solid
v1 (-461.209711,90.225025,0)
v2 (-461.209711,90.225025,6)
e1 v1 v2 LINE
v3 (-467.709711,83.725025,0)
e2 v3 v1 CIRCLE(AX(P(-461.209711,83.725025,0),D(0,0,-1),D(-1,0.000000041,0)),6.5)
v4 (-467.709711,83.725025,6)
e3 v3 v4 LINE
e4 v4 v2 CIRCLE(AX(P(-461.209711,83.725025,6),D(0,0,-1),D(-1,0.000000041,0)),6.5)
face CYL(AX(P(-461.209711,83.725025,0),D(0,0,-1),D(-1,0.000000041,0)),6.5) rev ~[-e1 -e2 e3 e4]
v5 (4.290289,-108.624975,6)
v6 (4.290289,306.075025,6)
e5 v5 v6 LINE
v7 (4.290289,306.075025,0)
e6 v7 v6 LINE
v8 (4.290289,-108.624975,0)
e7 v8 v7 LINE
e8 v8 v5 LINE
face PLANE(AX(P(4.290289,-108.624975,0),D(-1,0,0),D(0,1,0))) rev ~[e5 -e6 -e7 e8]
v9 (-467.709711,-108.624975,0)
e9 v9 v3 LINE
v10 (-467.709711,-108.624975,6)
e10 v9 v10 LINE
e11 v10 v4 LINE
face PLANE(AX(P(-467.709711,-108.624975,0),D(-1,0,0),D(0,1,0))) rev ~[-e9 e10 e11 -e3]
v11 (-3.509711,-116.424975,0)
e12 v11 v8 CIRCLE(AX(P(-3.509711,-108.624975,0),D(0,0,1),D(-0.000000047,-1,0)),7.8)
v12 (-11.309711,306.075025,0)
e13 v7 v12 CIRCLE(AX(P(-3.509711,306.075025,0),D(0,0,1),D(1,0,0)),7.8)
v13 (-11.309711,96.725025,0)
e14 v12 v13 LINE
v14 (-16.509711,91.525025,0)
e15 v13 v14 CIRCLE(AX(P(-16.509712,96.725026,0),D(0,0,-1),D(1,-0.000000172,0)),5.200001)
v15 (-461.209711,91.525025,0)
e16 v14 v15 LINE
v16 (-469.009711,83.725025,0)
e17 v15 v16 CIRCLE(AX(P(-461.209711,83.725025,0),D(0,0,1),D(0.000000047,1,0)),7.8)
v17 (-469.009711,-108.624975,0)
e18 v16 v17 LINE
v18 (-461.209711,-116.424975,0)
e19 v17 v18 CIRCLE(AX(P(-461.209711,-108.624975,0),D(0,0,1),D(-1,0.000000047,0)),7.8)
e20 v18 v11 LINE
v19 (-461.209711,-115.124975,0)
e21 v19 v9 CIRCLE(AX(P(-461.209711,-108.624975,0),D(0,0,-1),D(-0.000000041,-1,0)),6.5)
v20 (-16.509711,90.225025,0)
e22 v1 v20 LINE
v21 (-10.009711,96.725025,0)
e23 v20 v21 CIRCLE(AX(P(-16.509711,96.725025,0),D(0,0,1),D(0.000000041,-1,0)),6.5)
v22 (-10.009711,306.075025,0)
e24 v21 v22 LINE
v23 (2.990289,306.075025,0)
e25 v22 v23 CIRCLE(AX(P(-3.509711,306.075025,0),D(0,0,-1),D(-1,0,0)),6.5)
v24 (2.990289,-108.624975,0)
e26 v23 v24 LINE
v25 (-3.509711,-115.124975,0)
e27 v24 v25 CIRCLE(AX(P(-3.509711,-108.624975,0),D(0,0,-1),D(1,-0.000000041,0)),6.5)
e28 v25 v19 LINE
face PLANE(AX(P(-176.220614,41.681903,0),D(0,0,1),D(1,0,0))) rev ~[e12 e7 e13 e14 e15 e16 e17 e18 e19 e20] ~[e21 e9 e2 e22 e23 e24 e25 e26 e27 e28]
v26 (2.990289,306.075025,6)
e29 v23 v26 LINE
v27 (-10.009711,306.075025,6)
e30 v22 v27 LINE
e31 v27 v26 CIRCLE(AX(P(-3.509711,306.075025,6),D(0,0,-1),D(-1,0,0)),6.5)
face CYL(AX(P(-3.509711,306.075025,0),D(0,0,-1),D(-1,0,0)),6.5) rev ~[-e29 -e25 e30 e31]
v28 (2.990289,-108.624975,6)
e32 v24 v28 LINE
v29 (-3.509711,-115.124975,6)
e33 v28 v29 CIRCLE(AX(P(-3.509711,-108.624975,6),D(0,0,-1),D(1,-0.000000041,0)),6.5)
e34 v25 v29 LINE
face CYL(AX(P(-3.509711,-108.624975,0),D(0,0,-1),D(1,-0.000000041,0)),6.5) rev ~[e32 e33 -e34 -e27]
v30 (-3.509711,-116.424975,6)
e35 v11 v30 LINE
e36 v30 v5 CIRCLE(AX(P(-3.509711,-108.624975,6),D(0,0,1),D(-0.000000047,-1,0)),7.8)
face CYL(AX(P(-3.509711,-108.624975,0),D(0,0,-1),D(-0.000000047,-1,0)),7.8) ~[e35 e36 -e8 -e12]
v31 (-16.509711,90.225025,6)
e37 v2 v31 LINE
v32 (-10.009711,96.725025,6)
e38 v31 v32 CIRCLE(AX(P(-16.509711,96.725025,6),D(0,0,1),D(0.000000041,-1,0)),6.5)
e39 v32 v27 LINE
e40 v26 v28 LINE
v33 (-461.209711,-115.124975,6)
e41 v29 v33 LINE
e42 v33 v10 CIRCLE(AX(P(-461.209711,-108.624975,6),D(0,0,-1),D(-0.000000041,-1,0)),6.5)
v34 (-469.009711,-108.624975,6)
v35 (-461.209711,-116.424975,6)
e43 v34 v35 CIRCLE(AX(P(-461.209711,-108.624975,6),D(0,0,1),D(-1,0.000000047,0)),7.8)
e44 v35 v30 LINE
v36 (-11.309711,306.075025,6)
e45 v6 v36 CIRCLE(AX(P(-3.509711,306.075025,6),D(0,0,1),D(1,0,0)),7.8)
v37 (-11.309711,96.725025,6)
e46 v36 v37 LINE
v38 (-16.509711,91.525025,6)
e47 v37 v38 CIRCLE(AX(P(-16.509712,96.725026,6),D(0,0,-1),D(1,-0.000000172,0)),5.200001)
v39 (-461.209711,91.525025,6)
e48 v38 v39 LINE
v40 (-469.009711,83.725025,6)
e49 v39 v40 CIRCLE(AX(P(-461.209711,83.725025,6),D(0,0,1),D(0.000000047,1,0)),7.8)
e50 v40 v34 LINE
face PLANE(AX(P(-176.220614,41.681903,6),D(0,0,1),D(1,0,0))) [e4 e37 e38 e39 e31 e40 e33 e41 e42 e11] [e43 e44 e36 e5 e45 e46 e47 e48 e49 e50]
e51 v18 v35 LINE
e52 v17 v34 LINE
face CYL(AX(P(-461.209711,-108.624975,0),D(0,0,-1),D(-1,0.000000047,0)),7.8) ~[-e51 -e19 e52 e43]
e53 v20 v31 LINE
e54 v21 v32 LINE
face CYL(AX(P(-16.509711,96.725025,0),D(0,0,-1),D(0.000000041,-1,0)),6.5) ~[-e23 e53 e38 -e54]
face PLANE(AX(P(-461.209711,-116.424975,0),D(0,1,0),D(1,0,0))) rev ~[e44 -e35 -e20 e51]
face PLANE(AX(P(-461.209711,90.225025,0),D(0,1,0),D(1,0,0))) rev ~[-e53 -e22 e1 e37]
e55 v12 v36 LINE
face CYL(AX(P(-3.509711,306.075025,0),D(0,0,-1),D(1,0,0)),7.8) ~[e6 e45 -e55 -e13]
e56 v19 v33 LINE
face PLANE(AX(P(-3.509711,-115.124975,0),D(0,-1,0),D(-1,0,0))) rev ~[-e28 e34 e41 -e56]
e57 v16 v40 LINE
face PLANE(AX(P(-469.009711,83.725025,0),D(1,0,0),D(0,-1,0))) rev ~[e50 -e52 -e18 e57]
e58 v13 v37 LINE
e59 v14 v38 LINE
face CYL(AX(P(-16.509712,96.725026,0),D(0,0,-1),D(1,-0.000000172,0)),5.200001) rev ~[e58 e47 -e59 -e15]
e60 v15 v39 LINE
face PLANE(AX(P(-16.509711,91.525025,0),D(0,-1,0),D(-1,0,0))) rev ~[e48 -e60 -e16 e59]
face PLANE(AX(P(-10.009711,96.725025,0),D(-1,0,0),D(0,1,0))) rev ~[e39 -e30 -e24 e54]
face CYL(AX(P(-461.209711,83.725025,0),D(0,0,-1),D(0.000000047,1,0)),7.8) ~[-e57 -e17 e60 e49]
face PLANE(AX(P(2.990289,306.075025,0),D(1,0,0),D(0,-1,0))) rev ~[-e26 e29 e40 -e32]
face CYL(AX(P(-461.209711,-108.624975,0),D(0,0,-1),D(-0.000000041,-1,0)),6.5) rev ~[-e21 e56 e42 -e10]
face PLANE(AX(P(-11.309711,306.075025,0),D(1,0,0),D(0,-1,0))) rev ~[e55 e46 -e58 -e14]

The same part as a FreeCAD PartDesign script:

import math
import FreeCAD as App
import Part
import Sketcher
Q = App.Units.Quantity

doc = App.newDocument("Part")
body = doc.addObject("PartDesign::Body", "Body")

# Sketch on XY plane
sketch1 = body.newObject("Sketcher::SketchObject", "Sketch")
sketch1.AttachmentSupport = (doc.getObject("XY_Plane"), [""])
sketch1.MapMode = "FlatFace"
sketch1.addGeometry([
    Part.LineSegment(App.Vector(4, -109, 0), App.Vector(4, 306, 0)),  # 0
    Part.ArcOfCircle(Part.Circle(App.Vector(-4, 306, 0), App.Vector(0, 0, 1), 8), math.radians(0), math.radians(180)),  # 1
    Part.LineSegment(App.Vector(-11, 306, 0), App.Vector(-11, 97, 0)),  # 2
    Part.ArcOfCircle(Part.Circle(App.Vector(-17, 97, 0), App.Vector(0, 0, 1), 5), math.radians(-90), math.radians(0)),  # 3
    Part.LineSegment(App.Vector(-17, 92, 0), App.Vector(-461, 92, 0)),  # 4
    Part.ArcOfCircle(Part.Circle(App.Vector(-461, 84, 0), App.Vector(0, 0, 1), 8), math.radians(90), math.radians(180)),  # 5
    Part.LineSegment(App.Vector(-469, 84, 0), App.Vector(-469, -109, 0)),  # 6
    Part.ArcOfCircle(Part.Circle(App.Vector(-461, -109, 0), App.Vector(0, 0, 1), 8), math.radians(180), math.radians(270)),  # 7
    Part.LineSegment(App.Vector(-461, -116, 0), App.Vector(-4, -116, 0)),  # 8
    Part.ArcOfCircle(Part.Circle(App.Vector(-4, -109, 0), App.Vector(0, 0, 1), 8), math.radians(-90), math.radians(0)),  # 9
    Part.LineSegment(App.Vector(-10, 97, 0), App.Vector(-10, 306, 0)),  # 10
    Part.ArcOfCircle(Part.Circle(App.Vector(-4, 306, 0), App.Vector(0, 0, 1), 6), math.radians(0), math.radians(180)),  # 11
    Part.LineSegment(App.Vector(3, 306, 0), App.Vector(3, -109, 0)),  # 12
    Part.ArcOfCircle(Part.Circle(App.Vector(-4, -109, 0), App.Vector(0, 0, 1), 7), math.radians(-90), math.radians(0)),  # 13
    Part.LineSegment(App.Vector(-4, -115, 0), App.Vector(-461, -115, 0)),  # 14
    Part.ArcOfCircle(Part.Circle(App.Vector(-461, -109, 0), App.Vector(0, 0, 1), 7), math.radians(-180), math.radians(-90)),  # 15
    Part.LineSegment(App.Vector(-468, -109, 0), App.Vector(-468, 84, 0)),  # 16
    Part.ArcOfCircle(Part.Circle(App.Vector(-461, 84, 0), App.Vector(0, 0, 1), 7), math.radians(90), math.radians(180)),  # 17
    Part.LineSegment(App.Vector(-461, 90, 0), App.Vector(-17, 90, 0)),  # 18
    Part.ArcOfCircle(Part.Circle(App.Vector(-17, 97, 0), App.Vector(0, 0, 1), 7), math.radians(-90), math.radians(0)),  # 19
], False)
sketch1.addConstraint([
    Sketcher.Constraint("Tangent", 0, 2, 1, 1),
    Sketcher.Constraint("Tangent", 1, 2, 2, 1),
    Sketcher.Constraint("Tangent", 2, 2, 3, 2),
    Sketcher.Constraint("Tangent", 3, 1, 4, 1),
    Sketcher.Constraint("Tangent", 4, 2, 5, 1),
    Sketcher.Constraint("Tangent", 5, 2, 6, 1),
    Sketcher.Constraint("Tangent", 6, 2, 7, 1),
    Sketcher.Constraint("Tangent", 7, 2, 8, 1),
    Sketcher.Constraint("Tangent", 8, 2, 9, 1),
    Sketcher.Constraint("Tangent", 9, 2, 0, 1),
    Sketcher.Constraint("Tangent", 10, 2, 11, 2),
    Sketcher.Constraint("Tangent", 11, 1, 12, 1),
    Sketcher.Constraint("Tangent", 12, 2, 13, 2),
    Sketcher.Constraint("Tangent", 13, 1, 14, 1),
    Sketcher.Constraint("Tangent", 14, 2, 15, 2),
    Sketcher.Constraint("Tangent", 15, 1, 16, 1),
    Sketcher.Constraint("Tangent", 16, 2, 17, 2),
    Sketcher.Constraint("Tangent", 17, 1, 18, 1),
    Sketcher.Constraint("Tangent", 18, 2, 19, 1),
    Sketcher.Constraint("Tangent", 19, 2, 10, 1),
    Sketcher.Constraint("Vertical", 0),
    Sketcher.Constraint("Vertical", 2),
    Sketcher.Constraint("Horizontal", 4),
    Sketcher.Constraint("Vertical", 6),
    Sketcher.Constraint("Horizontal", 8),
    Sketcher.Constraint("Vertical", 10),
    Sketcher.Constraint("Vertical", 12),
    Sketcher.Constraint("Horizontal", 14),
    Sketcher.Constraint("Vertical", 16),
    Sketcher.Constraint("Horizontal", 18),
    Sketcher.Constraint("Coincident", 11, 3, 1, 3),
    Sketcher.Constraint("Coincident", 13, 3, 9, 3),
    Sketcher.Constraint("Coincident", 15, 3, 7, 3),
    Sketcher.Constraint("Coincident", 17, 3, 5, 3),
    Sketcher.Constraint("Equal", 1, 5),
    Sketcher.Constraint("Equal", 5, 7),
    Sketcher.Constraint("Equal", 7, 9),
    Sketcher.Constraint("Equal", 17, 19),
    Sketcher.Constraint("Horizontal", 19, 3, 2, 2),
    Sketcher.Constraint("Radius", 1, Q("7.8 mm")),
    Sketcher.Constraint("Radius", 3, Q("5.200001 mm")),
    Sketcher.Constraint("DistanceX", 4, 2, 4, 1, Q("444.7 mm")),
    Sketcher.Constraint("DistanceY", 0, 1, 0, 2, Q("414.7 mm")),
    Sketcher.Constraint("DistanceY", 2, 2, 2, 1, Q("209.35 mm")),
    Sketcher.Constraint("DistanceX", 1, 3, -1, 1, Q("3.509711 mm")),
    Sketcher.Constraint("DistanceY", -1, 1, 1, 3, Q("306.075025 mm")),
])
pad1 = body.newObject("PartDesign::Pad", "Pad")
pad1.Profile = sketch1
pad1.Length = 6

doc.recompute()
